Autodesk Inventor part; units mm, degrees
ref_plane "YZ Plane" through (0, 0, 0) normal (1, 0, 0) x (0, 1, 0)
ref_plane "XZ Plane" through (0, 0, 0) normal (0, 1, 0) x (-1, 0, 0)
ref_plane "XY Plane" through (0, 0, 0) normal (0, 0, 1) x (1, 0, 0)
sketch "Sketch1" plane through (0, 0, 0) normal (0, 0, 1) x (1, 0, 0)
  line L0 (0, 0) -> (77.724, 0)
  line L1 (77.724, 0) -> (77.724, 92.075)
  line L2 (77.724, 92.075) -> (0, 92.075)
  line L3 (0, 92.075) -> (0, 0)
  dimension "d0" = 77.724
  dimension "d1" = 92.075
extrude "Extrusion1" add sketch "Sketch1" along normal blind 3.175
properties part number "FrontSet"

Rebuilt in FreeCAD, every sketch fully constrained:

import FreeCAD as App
import Part
import Sketcher
from FreeCAD import Vector
Q = App.Units.Quantity

doc = App.newDocument("Part")
body = doc.addObject("PartDesign::Body", "Body")

# Sketch on XY plane
sketch1 = body.newObject("Sketcher::SketchObject", "Sketch")
sketch1.AttachmentSupport = (doc.getObject("XY_Plane"), [""])
sketch1.MapMode = "FlatFace"
sketch1.addGeometry([
    Part.LineSegment(Vector(0, 92, 0), Vector(0, 0, 0)),
    Part.LineSegment(Vector(0, 0, 0), Vector(78, 0, 0)),
    Part.LineSegment(Vector(78, 0, 0), Vector(78, 92, 0)),
    Part.LineSegment(Vector(78, 92, 0), Vector(0, 92, 0)),
], False)
sketch1.addConstraint([
    Sketcher.Constraint("Coincident", 0, 2, 1, 1),
    Sketcher.Constraint("Coincident", 1, 2, 2, 1),
    Sketcher.Constraint("Coincident", 2, 2, 3, 1),
    Sketcher.Constraint("Coincident", 3, 2, 0, 1),
    Sketcher.Constraint("Vertical", 0),
    Sketcher.Constraint("Horizontal", 1),
    Sketcher.Constraint("Vertical", 2),
    Sketcher.Constraint("Horizontal", 3),
    Sketcher.Constraint("Coincident", 0, 2, -1, 1),
    Sketcher.Constraint("DistanceX", 1, 1, 1, 2, Q("3.06 in")),
    Sketcher.Constraint("DistanceY", 0, 2, 0, 1, Q("3.625 in")),
])
pad1 = body.newObject("PartDesign::Pad", "Pad")
pad1.Profile = sketch1
pad1.Length = Q("0.125 in")

doc.recompute()
